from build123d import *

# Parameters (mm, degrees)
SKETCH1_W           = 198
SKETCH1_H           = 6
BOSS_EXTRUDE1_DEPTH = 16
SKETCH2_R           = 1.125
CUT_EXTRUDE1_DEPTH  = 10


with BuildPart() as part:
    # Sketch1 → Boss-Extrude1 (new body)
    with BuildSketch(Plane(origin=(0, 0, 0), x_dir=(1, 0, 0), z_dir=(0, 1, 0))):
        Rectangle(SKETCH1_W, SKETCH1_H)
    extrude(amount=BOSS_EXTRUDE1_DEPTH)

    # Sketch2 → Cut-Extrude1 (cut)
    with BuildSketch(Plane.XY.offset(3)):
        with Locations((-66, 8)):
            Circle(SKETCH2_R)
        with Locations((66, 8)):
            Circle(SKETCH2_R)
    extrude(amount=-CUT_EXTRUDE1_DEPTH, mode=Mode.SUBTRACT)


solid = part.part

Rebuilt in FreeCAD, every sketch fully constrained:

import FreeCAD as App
import Part
import Sketcher

V = App.Vector


def add_polygon(sketch, points):
    """Adds a closed chain of lines whose ends are joined by coincident constraints."""
    first, n = sketch.GeometryCount, len(points)
    for a, b in zip(points, points[1:] + points[:1]):
        sketch.addGeometry(Part.LineSegment(App.Vector(*a, 0), App.Vector(*b, 0)), False)
    for i in range(n):
        sketch.addConstraint(Sketcher.Constraint("Coincident", first + i, 2, first + (i + 1) % n, 1))

doc = App.newDocument("Part")
body = doc.addObject("PartDesign::Body", "Body")

sketch1 = body.newObject("Sketcher::SketchObject", "Sketch")
sketch1.AttachmentSupport = (doc.getObject("XZ_Plane"), [""])
sketch1.MapMode = "FlatFace"
add_polygon(sketch1, [(-99, -3), (-99, 3), (99, 3), (99, -3)])
sketch1.addConstraint(Sketcher.Constraint("Vertical", 0))
sketch1.addConstraint(Sketcher.Constraint("Horizontal", 1))
sketch1.addConstraint(Sketcher.Constraint("Vertical", 2))
sketch1.addConstraint(Sketcher.Constraint("Horizontal", 3))
sketch1.addConstraint(Sketcher.Constraint("Symmetric", 0, 2, 2, 2, -1, 1))
sketch1.addConstraint(Sketcher.Constraint("DistanceX", 1, 1, 1, 2, 198.0))
sketch1.addConstraint(Sketcher.Constraint("DistanceY", 0, 1, 0, 2, 6.0))
pad1 = body.newObject("PartDesign::Pad", "Pad")
pad1.Profile = sketch1
pad1.Length = 16
pad1.Reversed = True

sketch2 = body.newObject("Sketcher::SketchObject", "Sketch001")
sketch2.AttachmentSupport = (doc.getObject("XY_Plane"), [""])
sketch2.MapMode = "FlatFace"
sketch2.AttachmentOffset = App.Placement(V(0, 0, 3), App.Rotation())
sketch2.addGeometry(Part.Circle(V(-66, 8, 0), V(0, 0, 1), 1.125), False)
sketch2.addGeometry(Part.Circle(V(66, 8, 0), V(0, 0, 1), 1.125), False)
sketch2.addConstraint(Sketcher.Constraint("Equal", 0, 1))
sketch2.addConstraint(Sketcher.Constraint("Symmetric", 0, 3, 1, 3, -2))
sketch2.addConstraint(Sketcher.Constraint("Diameter", 0, 2.25))
sketch2.addConstraint(Sketcher.Constraint("DistanceX", 0, 3, -1, 1, 66.0))
sketch2.addConstraint(Sketcher.Constraint("DistanceY", -1, 1, 0, 3, 8.0))
pocket1 = body.newObject("PartDesign::Pocket", "Pocket")
pocket1.Profile = sketch2
pocket1.Length = 10

doc.recompute()
